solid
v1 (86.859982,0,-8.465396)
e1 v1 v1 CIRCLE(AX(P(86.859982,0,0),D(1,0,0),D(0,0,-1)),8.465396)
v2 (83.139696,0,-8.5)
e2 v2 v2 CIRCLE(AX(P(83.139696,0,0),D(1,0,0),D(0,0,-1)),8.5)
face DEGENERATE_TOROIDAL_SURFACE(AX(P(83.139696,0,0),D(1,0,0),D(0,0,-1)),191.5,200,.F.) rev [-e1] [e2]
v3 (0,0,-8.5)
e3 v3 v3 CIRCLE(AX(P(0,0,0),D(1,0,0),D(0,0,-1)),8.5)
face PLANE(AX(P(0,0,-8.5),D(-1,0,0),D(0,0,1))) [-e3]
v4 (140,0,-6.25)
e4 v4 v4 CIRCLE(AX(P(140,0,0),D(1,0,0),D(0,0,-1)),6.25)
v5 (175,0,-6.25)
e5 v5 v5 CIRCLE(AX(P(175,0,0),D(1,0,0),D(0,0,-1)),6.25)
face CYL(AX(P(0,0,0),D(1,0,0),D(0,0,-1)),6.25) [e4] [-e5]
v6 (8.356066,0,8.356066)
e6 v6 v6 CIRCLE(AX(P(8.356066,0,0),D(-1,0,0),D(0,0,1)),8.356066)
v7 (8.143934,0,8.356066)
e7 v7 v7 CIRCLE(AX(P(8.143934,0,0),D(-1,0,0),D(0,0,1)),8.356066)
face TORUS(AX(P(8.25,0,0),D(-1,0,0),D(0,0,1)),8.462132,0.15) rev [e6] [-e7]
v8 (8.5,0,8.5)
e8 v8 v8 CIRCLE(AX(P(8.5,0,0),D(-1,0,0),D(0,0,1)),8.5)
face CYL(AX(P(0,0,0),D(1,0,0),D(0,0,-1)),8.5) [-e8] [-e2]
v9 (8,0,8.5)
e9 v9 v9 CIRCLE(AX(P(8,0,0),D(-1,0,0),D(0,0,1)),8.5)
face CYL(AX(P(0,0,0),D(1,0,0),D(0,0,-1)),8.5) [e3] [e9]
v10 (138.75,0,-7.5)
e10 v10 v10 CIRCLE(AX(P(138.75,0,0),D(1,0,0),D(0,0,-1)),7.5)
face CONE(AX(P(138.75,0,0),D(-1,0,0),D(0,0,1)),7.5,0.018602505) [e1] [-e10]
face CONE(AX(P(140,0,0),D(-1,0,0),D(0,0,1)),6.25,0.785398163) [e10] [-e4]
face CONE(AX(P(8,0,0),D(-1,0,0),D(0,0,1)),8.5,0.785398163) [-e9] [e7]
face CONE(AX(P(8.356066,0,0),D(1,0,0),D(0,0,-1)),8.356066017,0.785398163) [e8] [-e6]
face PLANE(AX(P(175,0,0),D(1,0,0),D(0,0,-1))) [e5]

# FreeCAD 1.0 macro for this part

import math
import FreeCAD as App
import Part
import Sketcher
from FreeCAD import Vector
Q = App.Units.Quantity

doc = App.newDocument("Part")
body = doc.addObject("PartDesign::Body", "Body")

# Sketch on XZ plane
sketch1 = body.newObject("Sketcher::SketchObject", "Sketch")
sketch1.AttachmentSupport = (doc.getObject("XZ_Plane"), [""])
sketch1.MapMode = "FlatFace"
sketch1.addGeometry([
    Part.LineSegment(Vector(175, -6.25, 0), Vector(140, -6.25, 0)),  # 0
    Part.LineSegment(Vector(140, -6.25, 0), Vector(138.75, -7.5, 0)),  # 1
    Part.LineSegment(Vector(138.75, -7.5, 0), Vector(86.859982, -8.465396, 0)),  # 2
    Part.ArcOfCircle(Part.Circle(Vector(83.139696, 191.499994, 0), Vector(0, 0, 1), 199.999994), math.radians(-90), math.radians(-88.934155)),  # 3
    Part.LineSegment(Vector(83.139696, -8.5, 0), Vector(0, -8.5, 0)),  # 4
    Part.LineSegment(Vector(0, -8.5, 0), Vector(0, 0, 0)),  # 5
    Part.LineSegment(Vector(0, 0, 0), Vector(175, 0, 0)),  # 6
    Part.LineSegment(Vector(175, 0, 0), Vector(175, -6.25, 0)),  # 7
], False)
sketch1.addConstraint([
    Sketcher.Constraint("Coincident", 0, 2, 1, 1),
    Sketcher.Constraint("Coincident", 1, 2, 2, 1),
    Sketcher.Constraint("Tangent", 2, 2, 3, 2),
    Sketcher.Constraint("Tangent", 3, 1, 4, 1),
    Sketcher.Constraint("Coincident", 4, 2, 5, 1),
    Sketcher.Constraint("Coincident", 5, 2, 6, 1),
    Sketcher.Constraint("Coincident", 6, 2, 7, 1),
    Sketcher.Constraint("Coincident", 7, 2, 0, 1),
    Sketcher.Constraint("Horizontal", 0),
    Sketcher.Constraint("Horizontal", 4),
    Sketcher.Constraint("Vertical", 5),
    Sketcher.Constraint("Horizontal", 6),
    Sketcher.Constraint("Vertical", 7),
    Sketcher.Constraint("Coincident", 5, 2, -1, 1),
    Sketcher.Constraint("DistanceX", 0, 2, 0, 1, Q("35 mm")),
    Sketcher.Constraint("DistanceX", 6, 1, 6, 2, Q("175 mm")),
    Sketcher.Constraint("Angle", 1, Q("-135 deg")),
    Sketcher.Constraint("DistanceY", 5, 1, 5, 2, Q("8.5 mm")),
    Sketcher.Constraint("DistanceY", 3, 1, 1, 2, Q("1 mm")),
    Sketcher.Constraint("DistanceY", 7, 2, 7, 1, Q("6.25 mm")),
    Sketcher.Constraint("Radius", 3, Q("199.999994 mm")),
    Sketcher.Constraint("DistanceX", 4, 2, 4, 1, Q("83.139696 mm")),
])
revolution = body.newObject("PartDesign::Revolution", "Revolution")
revolution.Profile = sketch1
revolution.ReferenceAxis = (sketch1, ["H_Axis"])
revolution.Angle = 360

# Sketch on XZ plane
sketch2 = body.newObject("Sketcher::SketchObject", "Sketch001")
sketch2.AttachmentSupport = (doc.getObject("XZ_Plane"), [""])
sketch2.MapMode = "FlatFace"
sketch2.addGeometry([
    Part.LineSegment(Vector(8, -8.5, 0), Vector(8.143934, -8.356066, 0)),
    Part.ArcOfCircle(Part.Circle(Vector(8.25, -8.462132, 0), Vector(0, 0, 1), 0.15), math.radians(45), math.radians(135)),
    Part.LineSegment(Vector(8.356066, -8.356066, 0), Vector(8.5, -8.5, 0)),
    Part.LineSegment(Vector(8.5, -8.5, 0), Vector(8, -8.5, 0)),
], False)
sketch2.addConstraint([
    Sketcher.Constraint("Tangent", 0, 2, 1, 2),
    Sketcher.Constraint("Tangent", 1, 1, 2, 1),
    Sketcher.Constraint("Coincident", 2, 2, 3, 1),
    Sketcher.Constraint("Coincident", 3, 2, 0, 1),
    Sketcher.Constraint("Horizontal", 3),
    Sketcher.Constraint("Perpendicular", 0, 2),
    Sketcher.Constraint("Horizontal", 0, 2, 1, 1),
    Sketcher.Constraint("Radius", 1, Q("0.15 mm")),
    Sketcher.Constraint("DistanceX", 3, 2, 3, 1, Q("0.5 mm")),
    Sketcher.Constraint("DistanceX", -1, 1, 3, 2, Q("8 mm")),
    Sketcher.Constraint("DistanceY", 2, 2, -1, 1, Q("8.5 mm")),
])
groove = body.newObject("PartDesign::Groove", "Groove")
groove.Profile = sketch2
groove.ReferenceAxis = (sketch2, ["H_Axis"])
groove.Angle = 360

doc.recompute()
